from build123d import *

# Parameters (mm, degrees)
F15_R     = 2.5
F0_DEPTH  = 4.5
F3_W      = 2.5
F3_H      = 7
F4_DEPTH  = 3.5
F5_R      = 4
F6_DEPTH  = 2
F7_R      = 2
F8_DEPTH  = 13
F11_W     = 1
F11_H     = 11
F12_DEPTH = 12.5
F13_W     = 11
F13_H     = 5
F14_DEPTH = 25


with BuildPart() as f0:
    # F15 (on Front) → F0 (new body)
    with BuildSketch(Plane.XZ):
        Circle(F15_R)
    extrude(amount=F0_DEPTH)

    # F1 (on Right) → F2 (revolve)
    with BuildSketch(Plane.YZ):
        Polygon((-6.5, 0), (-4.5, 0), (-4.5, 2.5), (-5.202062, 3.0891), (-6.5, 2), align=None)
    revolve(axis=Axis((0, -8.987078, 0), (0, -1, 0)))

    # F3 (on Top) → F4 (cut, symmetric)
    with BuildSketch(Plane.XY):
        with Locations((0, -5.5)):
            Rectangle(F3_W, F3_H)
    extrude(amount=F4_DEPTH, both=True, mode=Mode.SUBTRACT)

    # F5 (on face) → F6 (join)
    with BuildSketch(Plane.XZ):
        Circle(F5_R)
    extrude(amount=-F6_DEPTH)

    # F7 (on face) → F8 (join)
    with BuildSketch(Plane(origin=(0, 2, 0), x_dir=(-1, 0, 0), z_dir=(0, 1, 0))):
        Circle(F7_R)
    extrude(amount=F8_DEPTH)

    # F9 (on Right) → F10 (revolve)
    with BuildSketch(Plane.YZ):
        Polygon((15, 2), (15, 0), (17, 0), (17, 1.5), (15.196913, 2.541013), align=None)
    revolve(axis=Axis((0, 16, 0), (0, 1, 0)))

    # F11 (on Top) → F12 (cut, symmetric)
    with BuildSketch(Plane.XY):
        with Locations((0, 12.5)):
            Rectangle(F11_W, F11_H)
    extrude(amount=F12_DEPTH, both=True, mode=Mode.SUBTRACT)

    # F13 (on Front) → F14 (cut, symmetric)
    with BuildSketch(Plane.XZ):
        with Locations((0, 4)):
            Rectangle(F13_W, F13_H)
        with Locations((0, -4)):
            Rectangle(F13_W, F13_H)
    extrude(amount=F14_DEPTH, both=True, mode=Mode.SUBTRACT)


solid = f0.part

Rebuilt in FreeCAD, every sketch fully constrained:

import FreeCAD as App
import Part
import Sketcher
Q = App.Units.Quantity

doc = App.newDocument("Part")
body = doc.addObject("PartDesign::Body", "Body")

# Sketch on XZ plane
sketch1 = doc.addObject("Sketcher::SketchObject", "Sketch")
body.addObject(sketch1)
sketch1.AttachmentSupport = (doc.XZ_Plane, [""])
sketch1.MapMode = "FlatFace"
sketch1.addGeometry(Part.Circle(App.Vector(0, 0, 0), App.Vector(0, 0, 1), 2.5), False)
sketch1.addConstraint(Sketcher.Constraint("Coincident", 0, 3, -1, 1))
sketch1.addConstraint(Sketcher.Constraint("Diameter", 0, 5.0))
pad1 = doc.addObject("PartDesign::Pad", "Pad")
body.addObject(pad1)
pad1.Profile = sketch1
pad1.Length = 4.5

# Sketch on YZ plane
sketch2 = doc.addObject("Sketcher::SketchObject", "Sketch001")
body.addObject(sketch2)
sketch2.AttachmentSupport = (doc.YZ_Plane, [""])
sketch2.MapMode = "FlatFace"
sketch2.addGeometry(Part.LineSegment(App.Vector(-6.5, 0, 0), App.Vector(-4.5, 0, 0)), False)
sketch2.addGeometry(Part.LineSegment(App.Vector(-4.5, 0, 0), App.Vector(-4.5, 2.5, 0)), False)
sketch2.addGeometry(Part.LineSegment(App.Vector(-4.5, 2.5, 0), App.Vector(-5.202062, 3.0891, 0)), False)
sketch2.addGeometry(Part.LineSegment(App.Vector(-5.202062, 3.0891, 0), App.Vector(-6.5, 2, 0)), False)
sketch2.addGeometry(Part.LineSegment(App.Vector(-6.5, 2, 0), App.Vector(-6.5, 0, 0)), False)
sketch2.addConstraint(Sketcher.Constraint("Coincident", 0, 2, 1, 1))
sketch2.addConstraint(Sketcher.Constraint("Coincident", 1, 2, 2, 1))
sketch2.addConstraint(Sketcher.Constraint("Coincident", 2, 2, 3, 1))
sketch2.addConstraint(Sketcher.Constraint("Coincident", 3, 2, 4, 1))
sketch2.addConstraint(Sketcher.Constraint("Coincident", 4, 2, 0, 1))
sketch2.addConstraint(Sketcher.Constraint("Horizontal", 0))
sketch2.addConstraint(Sketcher.Constraint("Vertical", 1))
sketch2.addConstraint(Sketcher.Constraint("Vertical", 4))
sketch2.addConstraint(Sketcher.Constraint("PointOnObject", 0, 2, -1))
sketch2.addConstraint(Sketcher.Constraint("Equal", 0, 4))
sketch2.addConstraint(Sketcher.Constraint("DistanceX", 0, 1, 0, 2, 2.0))
sketch2.addConstraint(Sketcher.Constraint("Angle", 2, Q("139.999998 deg")))
sketch2.addConstraint(Sketcher.Constraint("Angle", 3, Q("-139.999982 deg")))
sketch2.addConstraint(Sketcher.Constraint("DistanceY", 1, 1, 1, 2, 2.5))
sketch2.addConstraint(Sketcher.Constraint("DistanceX", 0, 2, -1, 1, 4.5))
revolution = doc.addObject("PartDesign::Revolution", "Revolution")
body.addObject(revolution)
revolution.Profile = sketch2
revolution.ReferenceAxis = (sketch2, ["H_Axis"])
revolution.Angle = 360

# Sketch on XY plane
sketch3 = doc.addObject("Sketcher::SketchObject", "Sketch002")
body.addObject(sketch3)
sketch3.AttachmentSupport = (doc.XY_Plane, [""])
sketch3.MapMode = "FlatFace"
sketch3.addGeometry(Part.LineSegment(App.Vector(-1.25, -2, 0), App.Vector(-1.25, -9, 0)), False)
sketch3.addGeometry(Part.LineSegment(App.Vector(-1.25, -9, 0), App.Vector(1.25, -9, 0)), False)
sketch3.addGeometry(Part.LineSegment(App.Vector(1.25, -9, 0), App.Vector(1.25, -2, 0)), False)
sketch3.addGeometry(Part.LineSegment(App.Vector(1.25, -2, 0), App.Vector(-1.25, -2, 0)), False)
sketch3.addConstraint(Sketcher.Constraint("Coincident", 0, 2, 1, 1))
sketch3.addConstraint(Sketcher.Constraint("Coincident", 1, 2, 2, 1))
sketch3.addConstraint(Sketcher.Constraint("Coincident", 2, 2, 3, 1))
sketch3.addConstraint(Sketcher.Constraint("Coincident", 3, 2, 0, 1))
sketch3.addConstraint(Sketcher.Constraint("Vertical", 0))
sketch3.addConstraint(Sketcher.Constraint("Horizontal", 1))
sketch3.addConstraint(Sketcher.Constraint("Vertical", 2))
sketch3.addConstraint(Sketcher.Constraint("Horizontal", 3))
sketch3.addConstraint(Sketcher.Constraint("DistanceY", 0, 2, 0, 1, 7.0))
sketch3.addConstraint(Sketcher.Constraint("DistanceX", 1, 1, 1, 2, 2.5))
sketch3.addConstraint(Sketcher.Constraint("DistanceY", 0, 2, -1, 1, 9.0))
sketch3.addConstraint(Sketcher.Constraint("DistanceX", 0, 2, -1, 1, 1.25))
pocket1 = doc.addObject("PartDesign::Pocket", "Pocket")
body.addObject(pocket1)
pocket1.Profile = sketch3
pocket1.Length = 7
pocket1.Midplane = True

# Sketch on XZ plane
sketch4 = doc.addObject("Sketcher::SketchObject", "Sketch003")
body.addObject(sketch4)
sketch4.AttachmentSupport = (doc.XZ_Plane, [""])
sketch4.MapMode = "FlatFace"
sketch4.addGeometry(Part.Circle(App.Vector(0, 0, 0), App.Vector(0, 0, 1), 4), False)
sketch4.addConstraint(Sketcher.Constraint("Coincident", 0, 3, -1, 1))
sketch4.addConstraint(Sketcher.Constraint("Diameter", 0, 8.0))
pad2 = doc.addObject("PartDesign::Pad", "Pad001")
body.addObject(pad2)
pad2.Profile = sketch4
pad2.Length = 2
pad2.Reversed = True

# Sketch on XZ plane
sketch5 = doc.addObject("Sketcher::SketchObject", "Sketch004")
body.addObject(sketch5)
sketch5.AttachmentSupport = (doc.XZ_Plane, [""])
sketch5.MapMode = "FlatFace"
sketch5.AttachmentOffset = App.Placement(App.Vector(0, 0, -2), App.Rotation())
sketch5.addGeometry(Part.Circle(App.Vector(0, 0, 0), App.Vector(0, 0, 1), 2), False)
sketch5.addConstraint(Sketcher.Constraint("Coincident", 0, 3, -1, 1))
sketch5.addConstraint(Sketcher.Constraint("Diameter", 0, 4.0))
pad3 = doc.addObject("PartDesign::Pad", "Pad002")
body.addObject(pad3)
pad3.Profile = sketch5
pad3.Length = 13
pad3.Reversed = True

# Sketch on YZ plane
sketch6 = doc.addObject("Sketcher::SketchObject", "Sketch005")
body.addObject(sketch6)
sketch6.AttachmentSupport = (doc.YZ_Plane, [""])
sketch6.MapMode = "FlatFace"
sketch6.addGeometry(Part.LineSegment(App.Vector(15, 2, 0), App.Vector(15, 0, 0)), False)
sketch6.addGeometry(Part.LineSegment(App.Vector(15, 0, 0), App.Vector(17, 0, 0)), False)
sketch6.addGeometry(Part.LineSegment(App.Vector(17, 0, 0), App.Vector(17, 1.5, 0)), False)
sketch6.addGeometry(Part.LineSegment(App.Vector(17, 1.5, 0), App.Vector(15.196913, 2.541013, 0)), False)
sketch6.addGeometry(Part.LineSegment(App.Vector(15.196913, 2.541013, 0), App.Vector(15, 2, 0)), False)
sketch6.addConstraint(Sketcher.Constraint("Coincident", 0, 2, 1, 1))
sketch6.addConstraint(Sketcher.Constraint("Coincident", 1, 2, 2, 1))
sketch6.addConstraint(Sketcher.Constraint("Coincident", 2, 2, 3, 1))
sketch6.addConstraint(Sketcher.Constraint("Coincident", 3, 2, 4, 1))
sketch6.addConstraint(Sketcher.Constraint("Coincident", 4, 2, 0, 1))
sketch6.addConstraint(Sketcher.Constraint("Vertical", 0))
sketch6.addConstraint(Sketcher.Constraint("Horizontal", 1))
sketch6.addConstraint(Sketcher.Constraint("Vertical", 2))
sketch6.addConstraint(Sketcher.Constraint("PointOnObject", 0, 2, -1))
sketch6.addConstraint(Sketcher.Constraint("Equal", 1, 0))
sketch6.addConstraint(Sketcher.Constraint("DistanceX", 1, 1, 1, 2, 2.0))
sketch6.addConstraint(Sketcher.Constraint("Angle", 3, Q("149.999994 deg")))
sketch6.addConstraint(Sketcher.Constraint("DistanceY", 2, 1, 2, 2, 1.5))
sketch6.addConstraint(Sketcher.Constraint("DistanceX", -1, 1, 0, 2, 15.0))
sketch6.addConstraint(Sketcher.Constraint("Distance", 3, 2.082026))
revolution2 = doc.addObject("PartDesign::Revolution", "Revolution001")
body.addObject(revolution2)
revolution2.Profile = sketch6
revolution2.ReferenceAxis = (sketch6, ["H_Axis"])
revolution2.Angle = 360

# Sketch on XY plane
sketch7 = doc.addObject("Sketcher::SketchObject", "Sketch006")
body.addObject(sketch7)
sketch7.AttachmentSupport = (doc.XY_Plane, [""])
sketch7.MapMode = "FlatFace"
sketch7.addGeometry(Part.LineSegment(App.Vector(-0.5, 18, 0), App.Vector(-0.5, 7, 0)), False)
sketch7.addGeometry(Part.LineSegment(App.Vector(-0.5, 7, 0), App.Vector(0.5, 7, 0)), False)
sketch7.addGeometry(Part.LineSegment(App.Vector(0.5, 7, 0), App.Vector(0.5, 18, 0)), False)
sketch7.addGeometry(Part.LineSegment(App.Vector(0.5, 18, 0), App.Vector(-0.5, 18, 0)), False)
sketch7.addConstraint(Sketcher.Constraint("Coincident", 0, 2, 1, 1))
sketch7.addConstraint(Sketcher.Constraint("Coincident", 1, 2, 2, 1))
sketch7.addConstraint(Sketcher.Constraint("Coincident", 2, 2, 3, 1))
sketch7.addConstraint(Sketcher.Constraint("Coincident", 3, 2, 0, 1))
sketch7.addConstraint(Sketcher.Constraint("Vertical", 0))
sketch7.addConstraint(Sketcher.Constraint("Horizontal", 1))
sketch7.addConstraint(Sketcher.Constraint("Vertical", 2))
sketch7.addConstraint(Sketcher.Constraint("Horizontal", 3))
sketch7.addConstraint(Sketcher.Constraint("DistanceX", 1, 1, 1, 2, 1.0))
sketch7.addConstraint(Sketcher.Constraint("DistanceY", 0, 2, 0, 1, 11.0))
sketch7.addConstraint(Sketcher.Constraint("DistanceY", -1, 1, 0, 2, 7.0))
sketch7.addConstraint(Sketcher.Constraint("DistanceX", 0, 2, -1, 1, 0.5))
pocket2 = doc.addObject("PartDesign::Pocket", "Pocket001")
body.addObject(pocket2)
pocket2.Profile = sketch7
pocket2.Length = 25
pocket2.Midplane = True

# Sketch on XZ plane
sketch8 = doc.addObject("Sketcher::SketchObject", "Sketch007")
body.addObject(sketch8)
sketch8.AttachmentSupport = (doc.XZ_Plane, [""])
sketch8.MapMode = "FlatFace"
sketch8.addGeometry(Part.LineSegment(App.Vector(-5.5, 6.5, 0), App.Vector(-5.5, 1.5, 0)), False)
sketch8.addGeometry(Part.LineSegment(App.Vector(-5.5, 1.5, 0), App.Vector(5.5, 1.5, 0)), False)
sketch8.addGeometry(Part.LineSegment(App.Vector(5.5, 1.5, 0), App.Vector(5.5, 6.5, 0)), False)
sketch8.addGeometry(Part.LineSegment(App.Vector(5.5, 6.5, 0), App.Vector(-5.5, 6.5, 0)), False)
sketch8.addGeometry(Part.LineSegment(App.Vector(-5.5, -1.5, 0), App.Vector(-5.5, -6.5, 0)), False)
sketch8.addGeometry(Part.LineSegment(App.Vector(-5.5, -6.5, 0), App.Vector(5.5, -6.5, 0)), False)
sketch8.addGeometry(Part.LineSegment(App.Vector(5.5, -6.5, 0), App.Vector(5.5, -1.5, 0)), False)
sketch8.addGeometry(Part.LineSegment(App.Vector(5.5, -1.5, 0), App.Vector(-5.5, -1.5, 0)), False)
sketch8.addConstraint(Sketcher.Constraint("Coincident", 0, 2, 1, 1))
sketch8.addConstraint(Sketcher.Constraint("Coincident", 1, 2, 2, 1))
sketch8.addConstraint(Sketcher.Constraint("Coincident", 2, 2, 3, 1))
sketch8.addConstraint(Sketcher.Constraint("Coincident", 3, 2, 0, 1))
sketch8.addConstraint(Sketcher.Constraint("Coincident", 4, 2, 5, 1))
sketch8.addConstraint(Sketcher.Constraint("Coincident", 5, 2, 6, 1))
sketch8.addConstraint(Sketcher.Constraint("Coincident", 6, 2, 7, 1))
sketch8.addConstraint(Sketcher.Constraint("Coincident", 7, 2, 4, 1))
sketch8.addConstraint(Sketcher.Constraint("Vertical", 0))
sketch8.addConstraint(Sketcher.Constraint("Horizontal", 1))
sketch8.addConstraint(Sketcher.Constraint("Vertical", 2))
sketch8.addConstraint(Sketcher.Constraint("Horizontal", 3))
sketch8.addConstraint(Sketcher.Constraint("Vertical", 4))
sketch8.addConstraint(Sketcher.Constraint("Horizontal", 5))
sketch8.addConstraint(Sketcher.Constraint("Vertical", 6))
sketch8.addConstraint(Sketcher.Constraint("Horizontal", 7))
sketch8.addConstraint(Sketcher.Constraint("Symmetric", 2, 2, 4, 2, -1, 1))
sketch8.addConstraint(Sketcher.Constraint("Symmetric", 0, 2, 6, 2, -1, 1))
sketch8.addConstraint(Sketcher.Constraint("Vertical", 3, 2, 4, 2))
sketch8.addConstraint(Sketcher.Constraint("DistanceX", 1, 1, 1, 2, 11.0))
sketch8.addConstraint(Sketcher.Constraint("DistanceY", 0, 2, 0, 1, 5.0))
sketch8.addConstraint(Sketcher.Constraint("DistanceY", 4, 2, 0, 2, 8.0))
pocket3 = doc.addObject("PartDesign::Pocket", "Pocket002")
body.addObject(pocket3)
pocket3.Profile = sketch8
pocket3.Length = 50
pocket3.Midplane = True

doc.recompute()
